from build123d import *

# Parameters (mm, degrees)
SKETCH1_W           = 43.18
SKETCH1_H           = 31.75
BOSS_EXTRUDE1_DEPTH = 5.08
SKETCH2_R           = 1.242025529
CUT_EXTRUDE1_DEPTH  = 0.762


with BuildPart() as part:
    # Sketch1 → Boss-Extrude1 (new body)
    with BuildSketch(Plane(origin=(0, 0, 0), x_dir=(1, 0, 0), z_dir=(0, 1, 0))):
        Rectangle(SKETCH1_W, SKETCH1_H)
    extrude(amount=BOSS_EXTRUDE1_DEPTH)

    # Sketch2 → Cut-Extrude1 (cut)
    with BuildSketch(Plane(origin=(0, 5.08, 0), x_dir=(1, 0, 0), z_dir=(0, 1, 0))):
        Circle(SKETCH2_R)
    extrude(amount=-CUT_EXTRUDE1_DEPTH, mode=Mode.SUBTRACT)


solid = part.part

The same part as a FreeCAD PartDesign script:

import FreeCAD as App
import Part
import Sketcher
from FreeCAD import Vector
Q = App.Units.Quantity

doc = App.newDocument("Part")
body = doc.addObject("PartDesign::Body", "Body")

# Sketch on XZ plane
sketch1 = body.newObject("Sketcher::SketchObject", "Sketch")
sketch1.AttachmentSupport = (doc.getObject("XZ_Plane"), [""])
sketch1.MapMode = "FlatFace"
sketch1.addGeometry(Part.LineSegment(Vector(-22, -16, 0), Vector(-22, 16, 0)), False)
sketch1.addGeometry(Part.LineSegment(Vector(-22, 16, 0), Vector(22, 16, 0)), False)
sketch1.addGeometry(Part.LineSegment(Vector(22, 16, 0), Vector(22, -16, 0)), False)
sketch1.addGeometry(Part.LineSegment(Vector(22, -16, 0), Vector(-22, -16, 0)), False)
sketch1.addConstraint(Sketcher.Constraint("Coincident", 0, 2, 1, 1))
sketch1.addConstraint(Sketcher.Constraint("Coincident", 1, 2, 2, 1))
sketch1.addConstraint(Sketcher.Constraint("Coincident", 2, 2, 3, 1))
sketch1.addConstraint(Sketcher.Constraint("Coincident", 3, 2, 0, 1))
sketch1.addConstraint(Sketcher.Constraint("Vertical", 0))
sketch1.addConstraint(Sketcher.Constraint("Horizontal", 1))
sketch1.addConstraint(Sketcher.Constraint("Vertical", 2))
sketch1.addConstraint(Sketcher.Constraint("Horizontal", 3))
sketch1.addConstraint(Sketcher.Constraint("Symmetric", 0, 2, 2, 2, -1, 1))
sketch1.addConstraint(Sketcher.Constraint("DistanceX", 1, 1, 1, 2, Q("1.7 in")))
sketch1.addConstraint(Sketcher.Constraint("DistanceY", 0, 1, 0, 2, Q("1.25 in")))
pad1 = body.newObject("PartDesign::Pad", "Pad")
pad1.Profile = sketch1
pad1.Length = Q("0.2 in")
pad1.Reversed = True

# Sketch on XZ plane
sketch2 = body.newObject("Sketcher::SketchObject", "Sketch001")
sketch2.AttachmentSupport = (doc.getObject("XZ_Plane"), [""])
sketch2.MapMode = "FlatFace"
sketch2.AttachmentOffset = App.Placement(Vector(0, 0, -0.2 * 25.4), App.Rotation())
sketch2.addGeometry(Part.Circle(Vector(0, 0, 0), Vector(0, 0, 1), 1.2), False)
sketch2.addConstraint(Sketcher.Constraint("Coincident", 0, 3, -1, 1))
sketch2.addConstraint(Sketcher.Constraint("Diameter", 0, Q("2.484051 mm")))
pocket1 = body.newObject("PartDesign::Pocket", "Pocket")
pocket1.Profile = sketch2
pocket1.Length = Q("0.03 in")
pocket1.Reversed = True

doc.recompute()
